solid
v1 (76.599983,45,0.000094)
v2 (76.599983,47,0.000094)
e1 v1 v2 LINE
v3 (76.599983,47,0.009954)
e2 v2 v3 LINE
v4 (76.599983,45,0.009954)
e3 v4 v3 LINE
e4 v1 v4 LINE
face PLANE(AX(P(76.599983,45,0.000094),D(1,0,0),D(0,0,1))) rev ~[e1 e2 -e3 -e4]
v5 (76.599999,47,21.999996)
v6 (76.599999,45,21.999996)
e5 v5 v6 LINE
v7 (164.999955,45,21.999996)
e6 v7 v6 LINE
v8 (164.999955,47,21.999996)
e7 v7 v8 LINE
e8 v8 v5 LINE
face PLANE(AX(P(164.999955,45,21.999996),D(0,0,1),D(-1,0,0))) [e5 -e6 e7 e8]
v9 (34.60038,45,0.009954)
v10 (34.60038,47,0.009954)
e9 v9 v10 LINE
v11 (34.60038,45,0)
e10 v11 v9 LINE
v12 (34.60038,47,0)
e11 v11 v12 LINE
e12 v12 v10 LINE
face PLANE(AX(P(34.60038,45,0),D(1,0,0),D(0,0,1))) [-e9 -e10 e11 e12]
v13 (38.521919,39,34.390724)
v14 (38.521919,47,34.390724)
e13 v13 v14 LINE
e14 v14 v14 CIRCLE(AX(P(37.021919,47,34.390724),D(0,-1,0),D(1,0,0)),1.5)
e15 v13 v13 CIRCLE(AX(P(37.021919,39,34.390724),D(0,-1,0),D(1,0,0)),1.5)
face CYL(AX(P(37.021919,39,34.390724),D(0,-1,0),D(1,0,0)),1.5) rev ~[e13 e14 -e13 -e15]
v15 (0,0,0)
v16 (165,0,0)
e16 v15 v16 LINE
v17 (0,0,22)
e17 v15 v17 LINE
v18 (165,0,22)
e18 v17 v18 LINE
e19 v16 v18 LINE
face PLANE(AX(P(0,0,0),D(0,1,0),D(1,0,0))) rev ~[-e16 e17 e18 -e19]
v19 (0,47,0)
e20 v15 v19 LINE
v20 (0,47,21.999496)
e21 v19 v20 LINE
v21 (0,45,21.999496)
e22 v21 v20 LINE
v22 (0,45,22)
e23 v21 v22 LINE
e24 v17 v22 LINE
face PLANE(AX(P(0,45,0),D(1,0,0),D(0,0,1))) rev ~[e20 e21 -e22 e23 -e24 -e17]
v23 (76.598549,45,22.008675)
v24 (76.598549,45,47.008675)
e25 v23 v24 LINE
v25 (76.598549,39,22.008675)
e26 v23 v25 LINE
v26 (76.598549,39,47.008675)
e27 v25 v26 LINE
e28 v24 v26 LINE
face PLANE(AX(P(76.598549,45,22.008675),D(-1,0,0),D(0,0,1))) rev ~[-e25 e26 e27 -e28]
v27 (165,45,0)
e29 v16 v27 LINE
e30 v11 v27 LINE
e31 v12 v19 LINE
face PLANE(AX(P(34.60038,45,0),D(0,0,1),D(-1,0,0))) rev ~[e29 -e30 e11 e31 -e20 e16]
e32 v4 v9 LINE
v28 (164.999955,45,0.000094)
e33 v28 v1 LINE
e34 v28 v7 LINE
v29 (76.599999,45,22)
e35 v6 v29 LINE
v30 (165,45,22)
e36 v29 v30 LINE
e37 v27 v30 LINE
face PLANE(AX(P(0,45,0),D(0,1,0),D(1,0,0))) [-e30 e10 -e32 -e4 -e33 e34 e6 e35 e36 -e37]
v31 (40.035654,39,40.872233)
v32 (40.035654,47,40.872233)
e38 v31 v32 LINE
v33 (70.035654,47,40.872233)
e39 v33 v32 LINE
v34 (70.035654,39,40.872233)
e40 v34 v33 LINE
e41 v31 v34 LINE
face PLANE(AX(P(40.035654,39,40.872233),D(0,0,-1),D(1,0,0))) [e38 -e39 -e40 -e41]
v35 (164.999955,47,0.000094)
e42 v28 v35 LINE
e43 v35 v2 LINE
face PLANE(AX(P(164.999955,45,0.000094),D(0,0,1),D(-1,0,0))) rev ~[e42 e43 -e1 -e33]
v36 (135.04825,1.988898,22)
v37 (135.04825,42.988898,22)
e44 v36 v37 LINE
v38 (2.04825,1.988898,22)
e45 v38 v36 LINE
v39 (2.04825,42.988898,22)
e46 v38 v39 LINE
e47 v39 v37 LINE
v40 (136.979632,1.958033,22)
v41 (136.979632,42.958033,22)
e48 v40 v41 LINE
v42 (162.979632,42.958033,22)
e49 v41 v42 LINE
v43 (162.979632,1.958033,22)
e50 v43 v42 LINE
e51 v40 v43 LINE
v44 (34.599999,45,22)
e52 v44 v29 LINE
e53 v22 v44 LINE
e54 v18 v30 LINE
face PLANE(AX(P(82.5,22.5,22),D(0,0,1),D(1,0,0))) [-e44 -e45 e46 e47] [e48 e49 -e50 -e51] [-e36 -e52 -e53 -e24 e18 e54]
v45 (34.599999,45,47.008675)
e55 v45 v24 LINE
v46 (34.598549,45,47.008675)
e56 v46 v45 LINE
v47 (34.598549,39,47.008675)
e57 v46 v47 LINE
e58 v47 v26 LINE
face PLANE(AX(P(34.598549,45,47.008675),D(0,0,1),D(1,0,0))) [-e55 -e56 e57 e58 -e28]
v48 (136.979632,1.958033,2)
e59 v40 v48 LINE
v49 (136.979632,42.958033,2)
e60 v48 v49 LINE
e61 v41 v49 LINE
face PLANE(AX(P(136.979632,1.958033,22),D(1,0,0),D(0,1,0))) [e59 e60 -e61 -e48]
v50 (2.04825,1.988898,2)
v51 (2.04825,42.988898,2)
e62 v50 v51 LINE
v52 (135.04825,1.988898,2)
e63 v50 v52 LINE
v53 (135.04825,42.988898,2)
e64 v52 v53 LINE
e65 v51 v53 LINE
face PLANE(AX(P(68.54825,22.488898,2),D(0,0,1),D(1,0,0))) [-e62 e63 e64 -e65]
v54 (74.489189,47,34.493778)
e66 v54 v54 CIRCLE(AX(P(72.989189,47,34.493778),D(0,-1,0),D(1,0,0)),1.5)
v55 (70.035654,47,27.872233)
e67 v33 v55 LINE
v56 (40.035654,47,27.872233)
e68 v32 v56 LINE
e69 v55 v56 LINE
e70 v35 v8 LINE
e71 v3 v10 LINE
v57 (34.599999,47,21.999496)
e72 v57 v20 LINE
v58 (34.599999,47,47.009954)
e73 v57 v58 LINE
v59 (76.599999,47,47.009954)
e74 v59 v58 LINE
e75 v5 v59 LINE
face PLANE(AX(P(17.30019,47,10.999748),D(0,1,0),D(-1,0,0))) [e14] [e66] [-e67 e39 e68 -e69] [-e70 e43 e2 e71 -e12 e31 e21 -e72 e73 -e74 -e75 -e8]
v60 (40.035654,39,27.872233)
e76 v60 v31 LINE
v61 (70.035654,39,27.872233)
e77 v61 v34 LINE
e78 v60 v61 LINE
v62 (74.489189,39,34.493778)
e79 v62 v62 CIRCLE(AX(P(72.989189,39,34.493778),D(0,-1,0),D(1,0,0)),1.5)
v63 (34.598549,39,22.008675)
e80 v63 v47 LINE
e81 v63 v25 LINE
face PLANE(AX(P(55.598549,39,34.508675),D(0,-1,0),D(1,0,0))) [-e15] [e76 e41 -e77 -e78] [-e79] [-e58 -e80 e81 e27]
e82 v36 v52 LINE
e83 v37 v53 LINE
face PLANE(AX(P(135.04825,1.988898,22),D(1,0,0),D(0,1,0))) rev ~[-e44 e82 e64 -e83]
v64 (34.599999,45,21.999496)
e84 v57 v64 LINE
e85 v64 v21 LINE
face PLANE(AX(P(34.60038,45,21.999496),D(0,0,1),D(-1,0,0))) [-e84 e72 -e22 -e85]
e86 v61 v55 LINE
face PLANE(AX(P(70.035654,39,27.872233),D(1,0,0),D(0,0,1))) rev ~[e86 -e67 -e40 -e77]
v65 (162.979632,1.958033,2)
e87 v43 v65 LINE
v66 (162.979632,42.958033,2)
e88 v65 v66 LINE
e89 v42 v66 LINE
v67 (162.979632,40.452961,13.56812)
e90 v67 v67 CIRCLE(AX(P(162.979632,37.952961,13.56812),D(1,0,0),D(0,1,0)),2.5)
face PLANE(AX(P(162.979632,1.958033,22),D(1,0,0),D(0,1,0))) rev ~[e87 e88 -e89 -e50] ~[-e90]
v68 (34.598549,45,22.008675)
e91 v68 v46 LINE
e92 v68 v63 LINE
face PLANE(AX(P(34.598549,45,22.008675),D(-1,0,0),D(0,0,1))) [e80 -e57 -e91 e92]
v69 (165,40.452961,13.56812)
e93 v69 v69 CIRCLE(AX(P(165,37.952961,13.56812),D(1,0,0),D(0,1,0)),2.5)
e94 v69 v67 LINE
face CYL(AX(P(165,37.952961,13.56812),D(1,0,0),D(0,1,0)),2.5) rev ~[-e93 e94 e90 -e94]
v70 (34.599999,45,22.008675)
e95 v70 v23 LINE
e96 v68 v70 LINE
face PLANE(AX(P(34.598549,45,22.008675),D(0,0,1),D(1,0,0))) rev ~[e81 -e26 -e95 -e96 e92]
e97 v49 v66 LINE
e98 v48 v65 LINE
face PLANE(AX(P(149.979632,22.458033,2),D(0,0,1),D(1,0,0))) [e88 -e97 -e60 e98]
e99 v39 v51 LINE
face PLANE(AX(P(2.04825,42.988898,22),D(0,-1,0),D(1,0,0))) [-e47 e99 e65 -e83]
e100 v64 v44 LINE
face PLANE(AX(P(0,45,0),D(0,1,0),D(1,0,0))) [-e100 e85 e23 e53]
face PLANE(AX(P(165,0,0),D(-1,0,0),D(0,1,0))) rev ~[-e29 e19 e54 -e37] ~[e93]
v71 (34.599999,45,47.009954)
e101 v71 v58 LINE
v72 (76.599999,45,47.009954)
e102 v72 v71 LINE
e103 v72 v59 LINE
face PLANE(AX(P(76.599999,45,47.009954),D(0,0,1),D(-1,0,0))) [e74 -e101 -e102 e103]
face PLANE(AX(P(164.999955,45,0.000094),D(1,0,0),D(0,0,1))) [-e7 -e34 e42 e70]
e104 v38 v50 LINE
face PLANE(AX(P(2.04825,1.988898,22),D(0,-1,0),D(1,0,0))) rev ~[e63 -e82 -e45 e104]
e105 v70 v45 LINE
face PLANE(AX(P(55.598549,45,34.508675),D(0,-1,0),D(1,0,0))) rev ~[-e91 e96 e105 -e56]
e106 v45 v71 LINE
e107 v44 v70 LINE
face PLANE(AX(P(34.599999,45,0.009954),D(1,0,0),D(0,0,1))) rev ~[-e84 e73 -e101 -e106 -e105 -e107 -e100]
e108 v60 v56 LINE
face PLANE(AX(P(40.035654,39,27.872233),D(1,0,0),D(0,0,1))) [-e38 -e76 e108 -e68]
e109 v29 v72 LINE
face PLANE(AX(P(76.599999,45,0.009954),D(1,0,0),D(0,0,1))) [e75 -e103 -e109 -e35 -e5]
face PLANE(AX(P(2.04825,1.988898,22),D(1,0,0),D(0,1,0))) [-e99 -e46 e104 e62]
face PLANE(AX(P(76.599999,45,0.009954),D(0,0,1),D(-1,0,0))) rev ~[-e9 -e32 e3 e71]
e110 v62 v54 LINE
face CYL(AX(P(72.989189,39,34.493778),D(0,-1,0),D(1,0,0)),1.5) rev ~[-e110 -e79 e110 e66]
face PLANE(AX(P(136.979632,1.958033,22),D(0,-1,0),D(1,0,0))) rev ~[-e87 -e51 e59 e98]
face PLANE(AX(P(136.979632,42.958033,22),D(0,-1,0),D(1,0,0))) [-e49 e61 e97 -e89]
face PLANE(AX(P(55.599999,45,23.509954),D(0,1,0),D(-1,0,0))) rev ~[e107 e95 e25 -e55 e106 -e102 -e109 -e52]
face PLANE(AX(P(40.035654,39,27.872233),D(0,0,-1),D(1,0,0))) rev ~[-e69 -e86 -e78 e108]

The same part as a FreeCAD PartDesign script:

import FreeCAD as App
import Part
import Sketcher

V = App.Vector

doc = App.newDocument("Part")
params = doc.addObject("Spreadsheet::Sheet", "Params")
for row, (alias, value) in enumerate([
    ("sketch1_width", "165 mm"),
    ("sketch1_height", "45 mm"),
    ("pad1_length", "22 mm"),
    ("sketch2_width", "133 mm"),
    ("sketch2_height", "41 mm"),
    ("pocket1_length", "20 mm"),
    ("sketch3_width", "26 mm"),
    ("sketch3_height", "41 mm"),
    ("pocket2_length", "20 mm"),
    ("sketch4_width", "42 mm"),
    ("sketch4_height", "47 mm"),
    ("pad2_length", "2 mm"),
    ("sketch5_width", "42 mm"),
    ("sketch5_height", "25 mm"),
    ("pad3_length", "6 mm"),
    ("sketch6_width", "30 mm"),
    ("sketch6_height", "13 mm"),
    ("sketch7_diameter", "3 mm"),
    ("sketch8_diameter", "5 mm"),
    ("pocket5_length", "5 mm"),
    ("pad4_length", "2 mm"),
    ("pad5_length", "2 mm"),
], start=1):
    params.set(f"A{row}", alias)
    params.set(f"B{row}", "=" + value)
    params.setAlias(f"B{row}", alias)

body = doc.addObject("PartDesign::Body", "Body")

# Sketch on XY plane
sketch1 = doc.addObject("Sketcher::SketchObject", "Sketch")
body.addObject(sketch1)
sketch1.AttachmentSupport = (doc.XY_Plane, [""])
sketch1.MapMode = "FlatFace"
sketch1.addGeometry([
    Part.LineSegment(V(0, 45, 0), V(0, 0, 0)),
    Part.LineSegment(V(0, 0, 0), V(165, 0, 0)),
    Part.LineSegment(V(165, 0, 0), V(165, 45, 0)),
    Part.LineSegment(V(165, 45, 0), V(0, 45, 0)),
], False)
sketch1.addConstraint([
    Sketcher.Constraint("Coincident", 0, 2, 1, 1),
    Sketcher.Constraint("Coincident", 1, 2, 2, 1),
    Sketcher.Constraint("Coincident", 2, 2, 3, 1),
    Sketcher.Constraint("Coincident", 3, 2, 0, 1),
    Sketcher.Constraint("Vertical", 0),
    Sketcher.Constraint("Horizontal", 1),
    Sketcher.Constraint("Vertical", 2),
    Sketcher.Constraint("Horizontal", 3),
    Sketcher.Constraint("Coincident", 0, 2, -1, 1),
    Sketcher.Constraint("DistanceX", 1, 1, 1, 2, 165.0),
    Sketcher.Constraint("DistanceY", 0, 2, 0, 1, 45.0),
])
sketch1.setExpression("Constraints[9]", "Params.sketch1_width")
sketch1.setExpression("Constraints[10]", "Params.sketch1_height")
pad1 = doc.addObject("PartDesign::Pad", "Pad")
body.addObject(pad1)
pad1.Profile = sketch1
pad1.setExpression("Length", "Params.pad1_length")

# Sketch on XY plane
sketch2 = doc.addObject("Sketcher::SketchObject", "Sketch001")
body.addObject(sketch2)
sketch2.AttachmentSupport = (doc.XY_Plane, [""])
sketch2.MapMode = "FlatFace"
sketch2.AttachmentOffset = App.Placement(V(0, 0, 22), App.Rotation())
sketch2.addGeometry([
    Part.LineSegment(V(2.04825, 42.988898, 0), V(2.04825, 1.988898, 0)),
    Part.LineSegment(V(2.04825, 1.988898, 0), V(135.04825, 1.988898, 0)),
    Part.LineSegment(V(135.04825, 1.988898, 0), V(135.04825, 42.988898, 0)),
    Part.LineSegment(V(135.04825, 42.988898, 0), V(2.04825, 42.988898, 0)),
], False)
sketch2.addConstraint([
    Sketcher.Constraint("Coincident", 0, 2, 1, 1),
    Sketcher.Constraint("Coincident", 1, 2, 2, 1),
    Sketcher.Constraint("Coincident", 2, 2, 3, 1),
    Sketcher.Constraint("Coincident", 3, 2, 0, 1),
    Sketcher.Constraint("Vertical", 0),
    Sketcher.Constraint("Horizontal", 1),
    Sketcher.Constraint("Vertical", 2),
    Sketcher.Constraint("Horizontal", 3),
    Sketcher.Constraint("DistanceX", 1, 1, 1, 2, 133.0),
    Sketcher.Constraint("DistanceY", 0, 2, 0, 1, 41.0),
    Sketcher.Constraint("DistanceY", -1, 1, 0, 2, 1.988898),
    Sketcher.Constraint("DistanceX", -1, 1, 0, 2, 2.04825),
])
sketch2.setExpression("Constraints[8]", "Params.sketch2_width")
sketch2.setExpression("Constraints[9]", "Params.sketch2_height")
pocket1 = doc.addObject("PartDesign::Pocket", "Pocket")
body.addObject(pocket1)
pocket1.Profile = sketch2
pocket1.setExpression("Length", "Params.pocket1_length")

# Sketch on XY plane
sketch3 = doc.addObject("Sketcher::SketchObject", "Sketch002")
body.addObject(sketch3)
sketch3.AttachmentSupport = (doc.XY_Plane, [""])
sketch3.MapMode = "FlatFace"
sketch3.AttachmentOffset = App.Placement(V(0, 0, 22), App.Rotation())
sketch3.addGeometry([
    Part.LineSegment(V(136.979632, 42.958033, 0), V(136.979632, 1.958033, 0)),
    Part.LineSegment(V(136.979632, 1.958033, 0), V(162.979632, 1.958033, 0)),
    Part.LineSegment(V(162.979632, 1.958033, 0), V(162.979632, 42.958033, 0)),
    Part.LineSegment(V(162.979632, 42.958033, 0), V(136.979632, 42.958033, 0)),
], False)
sketch3.addConstraint([
    Sketcher.Constraint("Coincident", 0, 2, 1, 1),
    Sketcher.Constraint("Coincident", 1, 2, 2, 1),
    Sketcher.Constraint("Coincident", 2, 2, 3, 1),
    Sketcher.Constraint("Coincident", 3, 2, 0, 1),
    Sketcher.Constraint("Vertical", 0),
    Sketcher.Constraint("Horizontal", 1),
    Sketcher.Constraint("Vertical", 2),
    Sketcher.Constraint("Horizontal", 3),
    Sketcher.Constraint("DistanceX", 1, 1, 1, 2, 26.0),
    Sketcher.Constraint("DistanceY", 0, 2, 0, 1, 41.0),
    Sketcher.Constraint("DistanceX", -1, 1, 0, 2, 136.979632),
    Sketcher.Constraint("DistanceY", -1, 1, 0, 2, 1.958033),
])
sketch3.setExpression("Constraints[8]", "Params.sketch3_width")
sketch3.setExpression("Constraints[9]", "Params.sketch3_height")
pocket2 = doc.addObject("PartDesign::Pocket", "Pocket001")
body.addObject(pocket2)
pocket2.Profile = sketch3
pocket2.setExpression("Length", "Params.pocket2_length")

# Sketch on XZ plane
sketch4 = doc.addObject("Sketcher::SketchObject", "Sketch003")
body.addObject(sketch4)
sketch4.AttachmentSupport = (doc.XZ_Plane, [""])
sketch4.MapMode = "FlatFace"
sketch4.AttachmentOffset = App.Placement(V(0, 0, -45), App.Rotation())
sketch4.addGeometry([
    Part.LineSegment(V(76.599999, 47.009954, 0), V(76.599999, 0.009954, 0)),
    Part.LineSegment(V(76.599999, 0.009954, 0), V(34.599999, 0.009954, 0)),
    Part.LineSegment(V(34.599999, 0.009954, 0), V(34.599999, 47.009954, 0)),
    Part.LineSegment(V(34.599999, 47.009954, 0), V(76.599999, 47.009954, 0)),
], False)
sketch4.addConstraint([
    Sketcher.Constraint("Coincident", 0, 2, 1, 1),
    Sketcher.Constraint("Coincident", 1, 2, 2, 1),
    Sketcher.Constraint("Coincident", 2, 2, 3, 1),
    Sketcher.Constraint("Coincident", 3, 2, 0, 1),
    Sketcher.Constraint("Vertical", 0),
    Sketcher.Constraint("Horizontal", 1),
    Sketcher.Constraint("Vertical", 2),
    Sketcher.Constraint("Horizontal", 3),
    Sketcher.Constraint("DistanceX", 1, 2, 1, 1, 42.0),
    Sketcher.Constraint("DistanceY", 0, 2, 0, 1, 47.0),
    Sketcher.Constraint("DistanceX", -1, 1, 0, 2, 76.599999),
    Sketcher.Constraint("DistanceY", -1, 1, 0, 2, 0.009954),
])
sketch4.setExpression("Constraints[8]", "Params.sketch4_width")
sketch4.setExpression("Constraints[9]", "Params.sketch4_height")
pad2 = doc.addObject("PartDesign::Pad", "Pad001")
body.addObject(pad2)
pad2.Profile = sketch4
pad2.setExpression("Length", "Params.pad2_length")
pad2.Reversed = True

# Sketch on XZ plane
sketch5 = doc.addObject("Sketcher::SketchObject", "Sketch004")
body.addObject(sketch5)
sketch5.AttachmentSupport = (doc.XZ_Plane, [""])
sketch5.MapMode = "FlatFace"
sketch5.AttachmentOffset = App.Placement(V(0, 0, -45), App.Rotation())
sketch5.addGeometry([
    Part.LineSegment(V(34.598549, 47.008675, 0), V(34.598549, 22.008675, 0)),
    Part.LineSegment(V(34.598549, 22.008675, 0), V(76.598549, 22.008675, 0)),
    Part.LineSegment(V(76.598549, 22.008675, 0), V(76.598549, 47.008675, 0)),
    Part.LineSegment(V(76.598549, 47.008675, 0), V(34.598549, 47.008675, 0)),
], False)
sketch5.addConstraint([
    Sketcher.Constraint("Coincident", 0, 2, 1, 1),
    Sketcher.Constraint("Coincident", 1, 2, 2, 1),
    Sketcher.Constraint("Coincident", 2, 2, 3, 1),
    Sketcher.Constraint("Coincident", 3, 2, 0, 1),
    Sketcher.Constraint("Vertical", 0),
    Sketcher.Constraint("Horizontal", 1),
    Sketcher.Constraint("Vertical", 2),
    Sketcher.Constraint("Horizontal", 3),
    Sketcher.Constraint("DistanceX", 1, 1, 1, 2, 42.0),
    Sketcher.Constraint("DistanceY", 0, 2, 0, 1, 25.0),
    Sketcher.Constraint("DistanceX", -1, 1, 0, 2, 34.598549),
    Sketcher.Constraint("DistanceY", -1, 1, 0, 2, 22.008675),
])
sketch5.setExpression("Constraints[8]", "Params.sketch5_width")
sketch5.setExpression("Constraints[9]", "Params.sketch5_height")
pad3 = doc.addObject("PartDesign::Pad", "Pad002")
body.addObject(pad3)
pad3.Profile = sketch5
pad3.setExpression("Length", "Params.pad3_length")

# Sketch on XZ plane
sketch6 = doc.addObject("Sketcher::SketchObject", "Sketch005")
body.addObject(sketch6)
sketch6.AttachmentSupport = (doc.XZ_Plane, [""])
sketch6.MapMode = "FlatFace"
sketch6.AttachmentOffset = App.Placement(V(0, 0, -39), App.Rotation())
sketch6.addGeometry([
    Part.LineSegment(V(40.035654, 40.872233, 0), V(40.035654, 27.872233, 0)),
    Part.LineSegment(V(40.035654, 27.872233, 0), V(70.035654, 27.872233, 0)),
    Part.LineSegment(V(70.035654, 27.872233, 0), V(70.035654, 40.872233, 0)),
    Part.LineSegment(V(70.035654, 40.872233, 0), V(40.035654, 40.872233, 0)),
], False)
sketch6.addConstraint([
    Sketcher.Constraint("Coincident", 0, 2, 1, 1),
    Sketcher.Constraint("Coincident", 1, 2, 2, 1),
    Sketcher.Constraint("Coincident", 2, 2, 3, 1),
    Sketcher.Constraint("Coincident", 3, 2, 0, 1),
    Sketcher.Constraint("Vertical", 0),
    Sketcher.Constraint("Horizontal", 1),
    Sketcher.Constraint("Vertical", 2),
    Sketcher.Constraint("Horizontal", 3),
    Sketcher.Constraint("DistanceX", 1, 1, 1, 2, 30.0),
    Sketcher.Constraint("DistanceY", 0, 2, 0, 1, 13.0),
    Sketcher.Constraint("DistanceX", -1, 1, 0, 2, 40.035654),
    Sketcher.Constraint("DistanceY", -1, 1, 0, 2, 27.872233),
])
sketch6.setExpression("Constraints[8]", "Params.sketch6_width")
sketch6.setExpression("Constraints[9]", "Params.sketch6_height")
pocket3 = doc.addObject("PartDesign::Pocket", "Pocket002")
body.addObject(pocket3)
pocket3.Profile = sketch6
pocket3.Type = "ThroughAll"

# Sketch on XZ plane
sketch7 = doc.addObject("Sketcher::SketchObject", "Sketch006")
body.addObject(sketch7)
sketch7.AttachmentSupport = (doc.XZ_Plane, [""])
sketch7.MapMode = "FlatFace"
sketch7.AttachmentOffset = App.Placement(V(0, 0, -39), App.Rotation())
sketch7.addGeometry([
    Part.Circle(V(37.021919, 34.390724, 0), V(0, 0, 1), 1.5),
    Part.Circle(V(72.989189, 34.493778, 0), V(0, 0, 1), 1.5),
], False)
sketch7.addConstraint([
    Sketcher.Constraint("Equal", 0, 1),
    Sketcher.Constraint("Diameter", 0, 3.0),
    Sketcher.Constraint("DistanceX", -1, 1, 0, 3, 37.021919),
    Sketcher.Constraint("DistanceX", -1, 1, 1, 3, 72.989189),
    Sketcher.Constraint("DistanceY", -1, 1, 0, 3, 34.390724),
    Sketcher.Constraint("DistanceY", -1, 1, 1, 3, 34.493778),
])
sketch7.setExpression("Constraints[1]", "Params.sketch7_diameter")
pocket4 = doc.addObject("PartDesign::Pocket", "Pocket003")
body.addObject(pocket4)
pocket4.Profile = sketch7
pocket4.Type = "ThroughAll"

# Sketch on YZ plane
sketch8 = doc.addObject("Sketcher::SketchObject", "Sketch007")
body.addObject(sketch8)
sketch8.AttachmentSupport = (doc.YZ_Plane, [""])
sketch8.MapMode = "FlatFace"
sketch8.AttachmentOffset = App.Placement(V(0, 0, 165), App.Rotation())
sketch8.addGeometry(Part.Circle(V(37.952961, 13.56812, 0), V(0, 0, 1), 2.5), False)
sketch8.addConstraint([
    Sketcher.Constraint("Diameter", 0, 5.0),
    Sketcher.Constraint("DistanceX", -1, 1, 0, 3, 37.952961),
    Sketcher.Constraint("DistanceY", -1, 1, 0, 3, 13.56812),
])
sketch8.setExpression("Constraints[0]", "Params.sketch8_diameter")
pocket5 = doc.addObject("PartDesign::Pocket", "Pocket004")
body.addObject(pocket5)
pocket5.Profile = sketch8
pocket5.setExpression("Length", "Params.pocket5_length")

# Sketch on XZ plane
sketch9 = doc.addObject("Sketcher::SketchObject", "Sketch008")
body.addObject(sketch9)
sketch9.AttachmentSupport = (doc.XZ_Plane, [""])
sketch9.MapMode = "FlatFace"
sketch9.AttachmentOffset = App.Placement(V(0, 0, -45), App.Rotation())
sketch9.addGeometry([
    Part.LineSegment(V(164.999955, 21.999996, 0), V(164.999955, 0.000094, 0)),
    Part.LineSegment(V(164.999955, 0.000094, 0), V(76.599983, 0.000094, 0)),
    Part.LineSegment(V(76.599983, 0.000094, 0), V(76.599983, 21.999996, 0)),
    Part.LineSegment(V(76.599983, 21.999996, 0), V(164.999955, 21.999996, 0)),
], False)
sketch9.addConstraint([
    Sketcher.Constraint("Coincident", 0, 2, 1, 1),
    Sketcher.Constraint("Coincident", 1, 2, 2, 1),
    Sketcher.Constraint("Coincident", 2, 2, 3, 1),
    Sketcher.Constraint("Coincident", 3, 2, 0, 1),
    Sketcher.Constraint("Vertical", 0),
    Sketcher.Constraint("Horizontal", 1),
    Sketcher.Constraint("Vertical", 2),
    Sketcher.Constraint("Horizontal", 3),
    Sketcher.Constraint("DistanceY", 0, 2, 0, 1, 21.999902),
    Sketcher.Constraint("DistanceX", 1, 2, 1, 1, 88.399971),
    Sketcher.Constraint("DistanceX", -1, 1, 0, 2, 164.999955),
    Sketcher.Constraint("DistanceY", -1, 1, 2, 2, 21.999996),
])
pad4 = doc.addObject("PartDesign::Pad", "Pad003")
body.addObject(pad4)
pad4.Profile = sketch9
pad4.setExpression("Length", "Params.pad4_length")
pad4.Reversed = True

# Sketch on XZ plane
sketch10 = doc.addObject("Sketcher::SketchObject", "Sketch009")
body.addObject(sketch10)
sketch10.AttachmentSupport = (doc.XZ_Plane, [""])
sketch10.MapMode = "FlatFace"
sketch10.AttachmentOffset = App.Placement(V(0, 0, -45), App.Rotation())
sketch10.addGeometry([
    Part.LineSegment(V(34.60038, 21.999496, 0), V(34.60038, 0, 0)),
    Part.LineSegment(V(34.60038, 0, 0), V(0, 0, 0)),
    Part.LineSegment(V(0, 0, 0), V(0, 21.999496, 0)),
    Part.LineSegment(V(0, 21.999496, 0), V(34.60038, 21.999496, 0)),
], False)
sketch10.addConstraint([
    Sketcher.Constraint("Coincident", 0, 2, 1, 1),
    Sketcher.Constraint("Coincident", 1, 2, 2, 1),
    Sketcher.Constraint("Coincident", 2, 2, 3, 1),
    Sketcher.Constraint("Coincident", 3, 2, 0, 1),
    Sketcher.Constraint("Vertical", 0),
    Sketcher.Constraint("Horizontal", 1),
    Sketcher.Constraint("Vertical", 2),
    Sketcher.Constraint("Horizontal", 3),
    Sketcher.Constraint("Coincident", 1, 2, -1, 1),
    Sketcher.Constraint("DistanceX", 1, 2, 1, 1, 34.60038),
    Sketcher.Constraint("DistanceY", 0, 2, 0, 1, 21.999496),
])
pad5 = doc.addObject("PartDesign::Pad", "Pad004")
body.addObject(pad5)
pad5.Profile = sketch10
pad5.setExpression("Length", "Params.pad5_length")
pad5.Reversed = True

doc.recompute()
